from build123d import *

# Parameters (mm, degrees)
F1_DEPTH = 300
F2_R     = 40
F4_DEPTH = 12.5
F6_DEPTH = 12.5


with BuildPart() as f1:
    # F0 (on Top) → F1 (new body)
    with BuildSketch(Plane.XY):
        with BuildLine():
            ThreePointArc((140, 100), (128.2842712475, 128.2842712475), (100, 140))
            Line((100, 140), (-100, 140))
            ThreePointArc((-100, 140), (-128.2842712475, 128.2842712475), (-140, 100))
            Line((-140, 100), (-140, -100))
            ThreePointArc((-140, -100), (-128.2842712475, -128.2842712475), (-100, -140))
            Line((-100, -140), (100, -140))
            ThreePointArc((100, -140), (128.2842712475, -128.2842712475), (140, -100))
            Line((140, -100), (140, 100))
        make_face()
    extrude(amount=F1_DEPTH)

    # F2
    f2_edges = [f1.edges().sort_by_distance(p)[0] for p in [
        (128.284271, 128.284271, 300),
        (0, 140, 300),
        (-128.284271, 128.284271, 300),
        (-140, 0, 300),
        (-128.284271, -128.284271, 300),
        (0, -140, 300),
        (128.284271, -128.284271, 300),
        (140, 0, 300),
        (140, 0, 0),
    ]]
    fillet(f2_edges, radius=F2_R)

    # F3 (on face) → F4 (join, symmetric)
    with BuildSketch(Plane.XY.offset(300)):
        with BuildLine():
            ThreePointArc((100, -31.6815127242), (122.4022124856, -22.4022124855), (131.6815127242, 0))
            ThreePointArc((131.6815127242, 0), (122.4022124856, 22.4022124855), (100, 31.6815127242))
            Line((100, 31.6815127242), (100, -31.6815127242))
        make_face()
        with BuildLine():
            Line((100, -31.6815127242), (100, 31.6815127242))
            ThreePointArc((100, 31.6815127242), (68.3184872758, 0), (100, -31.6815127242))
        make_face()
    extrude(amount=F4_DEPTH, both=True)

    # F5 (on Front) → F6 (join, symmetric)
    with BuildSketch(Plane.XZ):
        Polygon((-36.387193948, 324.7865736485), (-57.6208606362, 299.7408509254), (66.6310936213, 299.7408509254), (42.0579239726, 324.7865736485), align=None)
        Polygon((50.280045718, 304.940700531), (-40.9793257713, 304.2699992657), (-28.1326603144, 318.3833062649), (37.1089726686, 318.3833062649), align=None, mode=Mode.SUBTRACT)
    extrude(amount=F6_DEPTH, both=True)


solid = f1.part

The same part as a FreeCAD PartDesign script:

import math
import FreeCAD as App
import Part
import Sketcher
from FreeCAD import Vector


def edges_at(feature, points):
    """Names of the edges that pass closest to the given points."""
    edges = feature.Shape.Edges
    near = lambda p: min(range(len(edges)), key=lambda i: edges[i].distToShape(Part.Vertex(*p))[0])
    return sorted({f"Edge{near(p) + 1}" for p in points})


def add_polygon(sketch, points):
    """Adds a closed chain of lines whose ends are joined by coincident constraints."""
    first, n = sketch.GeometryCount, len(points)
    for a, b in zip(points, points[1:] + points[:1]):
        sketch.addGeometry(Part.LineSegment(App.Vector(*a, 0), App.Vector(*b, 0)), False)
    for i in range(n):
        sketch.addConstraint(Sketcher.Constraint("Coincident", first + i, 2, first + (i + 1) % n, 1))

doc = App.newDocument("Part")
body = doc.addObject("PartDesign::Body", "Body")

# Sketch on XY plane
sketch1 = body.newObject("Sketcher::SketchObject", "Sketch")
sketch1.AttachmentSupport = (doc.getObject("XY_Plane"), [""])
sketch1.MapMode = "FlatFace"
sketch1.addGeometry(Part.ArcOfCircle(Part.Circle(Vector(100, 100, 0), Vector(0, 0, 1), 40), math.radians(0), math.radians(90)), False)
sketch1.addGeometry(Part.LineSegment(Vector(100, 140, 0), Vector(-100, 140, 0)), False)
sketch1.addGeometry(Part.ArcOfCircle(Part.Circle(Vector(-100, 100, 0), Vector(0, 0, 1), 40), math.radians(90), math.radians(180)), False)
sketch1.addGeometry(Part.LineSegment(Vector(-140, 100, 0), Vector(-140, -100, 0)), False)
sketch1.addGeometry(Part.ArcOfCircle(Part.Circle(Vector(-100, -100, 0), Vector(0, 0, 1), 40), math.radians(180), math.radians(270)), False)
sketch1.addGeometry(Part.LineSegment(Vector(-100, -140, 0), Vector(100, -140, 0)), False)
sketch1.addGeometry(Part.ArcOfCircle(Part.Circle(Vector(100, -100, 0), Vector(0, 0, 1), 40), math.radians(-90), math.radians(0)), False)
sketch1.addGeometry(Part.LineSegment(Vector(140, -100, 0), Vector(140, 100, 0)), False)
sketch1.addConstraint(Sketcher.Constraint("Tangent", 0, 2, 1, 1))
sketch1.addConstraint(Sketcher.Constraint("Tangent", 1, 2, 2, 1))
sketch1.addConstraint(Sketcher.Constraint("Tangent", 2, 2, 3, 1))
sketch1.addConstraint(Sketcher.Constraint("Tangent", 3, 2, 4, 1))
sketch1.addConstraint(Sketcher.Constraint("Tangent", 4, 2, 5, 1))
sketch1.addConstraint(Sketcher.Constraint("Tangent", 5, 2, 6, 1))
sketch1.addConstraint(Sketcher.Constraint("Tangent", 6, 2, 7, 1))
sketch1.addConstraint(Sketcher.Constraint("Tangent", 7, 2, 0, 1))
sketch1.addConstraint(Sketcher.Constraint("Horizontal", 1))
sketch1.addConstraint(Sketcher.Constraint("Vertical", 3))
sketch1.addConstraint(Sketcher.Constraint("Horizontal", 5))
sketch1.addConstraint(Sketcher.Constraint("Vertical", 7))
sketch1.addConstraint(Sketcher.Constraint("Equal", 0, 2))
sketch1.addConstraint(Sketcher.Constraint("Equal", 2, 4))
sketch1.addConstraint(Sketcher.Constraint("Equal", 4, 6))
sketch1.addConstraint(Sketcher.Constraint("Symmetric", 0, 3, 4, 3, -1, 1))
sketch1.addConstraint(Sketcher.Constraint("Equal", 5, 3))
sketch1.addConstraint(Sketcher.Constraint("Radius", 0, 40.0))
sketch1.addConstraint(Sketcher.Constraint("DistanceX", 1, 2, 1, 1, 200.0))
pad1 = body.newObject("PartDesign::Pad", "Pad")
pad1.Profile = sketch1
pad1.Length = 300
doc.recompute()

fillet = body.newObject("PartDesign::Fillet", "Fillet")
fillet.Base = (pad1, edges_at(pad1, [
    (128.284, 128.284, 300),
    (0, 140, 300),
    (-128.284, 128.284, 300),
    (-140, 0, 300),
    (-128.284, -128.284, 300),
    (0, -140, 300),
    (128.284, -128.284, 300),
    (140, 0, 300),
    (140, 0, 0),
]))
fillet.Radius = 40

# Sketch on XY plane
sketch2 = body.newObject("Sketcher::SketchObject", "Sketch001")
sketch2.AttachmentSupport = (doc.getObject("XY_Plane"), [""])
sketch2.MapMode = "FlatFace"
sketch2.AttachmentOffset = App.Placement(Vector(0, 0, 300), App.Rotation())
sketch2.addGeometry(Part.ArcOfCircle(Part.Circle(Vector(100, 0, 0), Vector(0, 0, 1), 31.681513), math.radians(-90), math.radians(0)), False)
sketch2.addGeometry(Part.ArcOfCircle(Part.Circle(Vector(100, 0, 0), Vector(0, 0, 1), 31.681513), math.radians(0), math.radians(90)), False)
sketch2.addGeometry(Part.ArcOfCircle(Part.Circle(Vector(100, 0, 0), Vector(0, 0, 1), 31.681513), math.radians(90), math.radians(270)), False)
sketch2.addConstraint(Sketcher.Constraint("Tangent", 0, 2, 1, 1))
sketch2.addConstraint(Sketcher.Constraint("Tangent", 1, 2, 2, 1))
sketch2.addConstraint(Sketcher.Constraint("Tangent", 2, 2, 0, 1))
sketch2.addConstraint(Sketcher.Constraint("Symmetric", 1, 2, 2, 2, -1))
sketch2.addConstraint(Sketcher.Constraint("PointOnObject", 0, 2, -1))
sketch2.addConstraint(Sketcher.Constraint("Vertical", 2, 3, 1, 2))
sketch2.addConstraint(Sketcher.Constraint("DistanceX", -1, 1, 0, 3, 100.0))
sketch2.addConstraint(Sketcher.Constraint("Radius", 0, 31.681513))
pad2 = body.newObject("PartDesign::Pad", "Pad001")
pad2.Profile = sketch2
pad2.Length = 25
pad2.Midplane = True

# Sketch on XZ plane
sketch3 = body.newObject("Sketcher::SketchObject", "Sketch002")
sketch3.AttachmentSupport = (doc.getObject("XZ_Plane"), [""])
sketch3.MapMode = "FlatFace"
add_polygon(sketch3, [(-36.387194, 324.786574), (-57.620861, 299.740851), (66.631094, 299.740851), (42.057924, 324.786574)])  # lines 0-3
add_polygon(sketch3, [(37.108973, 318.383306), (50.280046, 304.940701), (-40.979326, 304.269999), (-28.13266, 318.383306)])  # lines 4-7
sketch3.addConstraint(Sketcher.Constraint("Horizontal", 1))
sketch3.addConstraint(Sketcher.Constraint("Horizontal", 3))
sketch3.addConstraint(Sketcher.Constraint("Horizontal", 7))
sketch3.addConstraint(Sketcher.Constraint("DistanceY", -1, 1, 5, 2, 304.269999))
sketch3.addConstraint(Sketcher.Constraint("Distance", 0, 32.835299))
sketch3.addConstraint(Sketcher.Constraint("DistanceY", -1, 1, 4, 2, 304.940701))
sketch3.addConstraint(Sketcher.Constraint("DistanceX", 0, 2, 6, 2, 29.4882))
sketch3.addConstraint(Sketcher.Constraint("DistanceX", 1, 1, 1, 2, 124.251954))
sketch3.addConstraint(Sketcher.Constraint("DistanceX", 3, 2, 3, 1, 78.445118))
sketch3.addConstraint(Sketcher.Constraint("DistanceX", 7, 1, 7, 2, 65.241633))
sketch3.addConstraint(Sketcher.Constraint("DistanceX", 0, 2, -1, 1, 57.620861))
sketch3.addConstraint(Sketcher.Constraint("DistanceY", -1, 1, 0, 2, 299.740851))
sketch3.addConstraint(Sketcher.Constraint("DistanceX", 2, 2, 1, 2, 24.57317))
sketch3.addConstraint(Sketcher.Constraint("DistanceX", 2, 2, 4, 2, 8.222122))
sketch3.addConstraint(Sketcher.Constraint("DistanceX", 5, 2, 3, 2, 4.592132))
sketch3.addConstraint(Sketcher.Constraint("Distance", 4, 18.819692))
pad3 = body.newObject("PartDesign::Pad", "Pad002")
pad3.Profile = sketch3
pad3.Length = 25
pad3.Midplane = True

doc.recompute()
